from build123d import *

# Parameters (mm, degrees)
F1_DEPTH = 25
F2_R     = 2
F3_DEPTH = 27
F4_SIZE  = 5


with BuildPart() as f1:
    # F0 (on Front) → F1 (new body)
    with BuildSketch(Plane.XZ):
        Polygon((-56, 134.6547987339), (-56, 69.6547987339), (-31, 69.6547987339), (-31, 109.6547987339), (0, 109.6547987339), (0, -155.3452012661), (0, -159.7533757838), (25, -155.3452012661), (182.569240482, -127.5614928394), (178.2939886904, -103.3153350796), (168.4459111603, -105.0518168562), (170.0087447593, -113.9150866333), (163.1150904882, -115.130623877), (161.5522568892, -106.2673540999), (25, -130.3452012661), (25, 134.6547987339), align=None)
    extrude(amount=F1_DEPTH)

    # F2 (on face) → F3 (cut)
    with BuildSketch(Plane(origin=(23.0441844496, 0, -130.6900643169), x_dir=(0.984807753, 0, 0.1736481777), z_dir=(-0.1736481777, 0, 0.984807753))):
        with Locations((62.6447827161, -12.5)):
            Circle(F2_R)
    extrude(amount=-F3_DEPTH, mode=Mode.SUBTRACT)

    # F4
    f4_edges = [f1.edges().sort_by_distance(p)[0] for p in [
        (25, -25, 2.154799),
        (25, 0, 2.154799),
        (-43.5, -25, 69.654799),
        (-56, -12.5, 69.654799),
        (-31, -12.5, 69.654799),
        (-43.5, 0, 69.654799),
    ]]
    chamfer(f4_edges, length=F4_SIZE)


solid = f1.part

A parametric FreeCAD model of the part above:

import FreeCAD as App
import Part
import Sketcher
from FreeCAD import Vector
Q = App.Units.Quantity


def edges_at(feature, points):
    """Names of the edges that pass closest to the given points."""
    edges = feature.Shape.Edges
    near = lambda p: min(range(len(edges)), key=lambda i: edges[i].distToShape(Part.Vertex(*p))[0])
    return sorted({f"Edge{near(p) + 1}" for p in points})


def add_polygon(sketch, points):
    """Adds a closed chain of lines whose ends are joined by coincident constraints."""
    first, n = sketch.GeometryCount, len(points)
    for a, b in zip(points, points[1:] + points[:1]):
        sketch.addGeometry(Part.LineSegment(App.Vector(*a, 0), App.Vector(*b, 0)), False)
    for i in range(n):
        sketch.addConstraint(Sketcher.Constraint("Coincident", first + i, 2, first + (i + 1) % n, 1))

doc = App.newDocument("Part")
body = doc.addObject("PartDesign::Body", "Body")

# Sketch on XZ plane
sketch1 = body.newObject("Sketcher::SketchObject", "Sketch")
sketch1.AttachmentSupport = (doc.getObject("XZ_Plane"), [""])
sketch1.MapMode = "FlatFace"
add_polygon(sketch1, [(-56, 134.654799), (-56, 69.654799), (-31, 69.654799), (-31, 109.654799), (0, 109.654799), (0, -159.753376), (182.56924, -127.561493), (178.293989, -103.315335), (168.445911, -105.051817), (170.008745, -113.915087), (163.11509, -115.130624), (161.552257, -106.267354), (25, -130.345201), (25, 134.654799)])  # lines 0-13
sketch1.addConstraint([
    Sketcher.Constraint("Vertical", 0),
    Sketcher.Constraint("Horizontal", 1),
    Sketcher.Constraint("Vertical", 2),
    Sketcher.Constraint("Horizontal", 3),
    Sketcher.Constraint("Vertical", 4),
    Sketcher.Constraint("Vertical", 12),
    Sketcher.Constraint("Horizontal", 13),
    Sketcher.Constraint("PointOnObject", 3, 2, -2),
    Sketcher.Constraint("Perpendicular", 5, 6),
    Sketcher.Constraint("Perpendicular", 6, 7),
    Sketcher.Constraint("Perpendicular", 7, 8),
    Sketcher.Constraint("Perpendicular", 8, 9),
    Sketcher.Constraint("Perpendicular", 9, 10),
    Sketcher.Constraint("Perpendicular", 10, 11),
    Sketcher.Constraint("Equal", 8, 10),
    Sketcher.Constraint("DistanceX", 1, 1, 1, 2, Q("25 mm")),
    Sketcher.Constraint("DistanceX", 3, 1, 3, 2, Q("31 mm")),
    Sketcher.Constraint("DistanceX", 13, 2, 13, 1, Q("81 mm")),
    Sketcher.Constraint("DistanceY", 0, 2, 0, 1, Q("65 mm")),
    Sketcher.Constraint("DistanceY", 2, 1, 2, 2, Q("40 mm")),
    Sketcher.Constraint("DistanceY", 12, 1, 12, 2, Q("265 mm")),
    Sketcher.Constraint("Angle", 5, Q("10 deg")),
    Sketcher.Constraint("Distance", 7, Q("10 mm")),
    Sketcher.Constraint("Distance", 8, Q("9 mm")),
    Sketcher.Constraint("Distance", 9, Q("7 mm")),
    Sketcher.Constraint("DistanceY", -1, 1, 0, 2, Q("69.654799 mm")),
    Sketcher.Constraint("DistanceY", 4, 2, 4, 1, Q("269.408175 mm")),
    Sketcher.Constraint("DistanceX", -1, 1, 5, 2, Q("182.56924 mm")),
])
pad1 = body.newObject("PartDesign::Pad", "Pad")
pad1.Profile = sketch1
pad1.Length = 25

# Sketch on an angled plane
sketch2 = body.newObject("Sketcher::SketchObject", "Sketch001")
sketch2.Placement = App.Placement(Vector(23.044184, 0, -130.690064), App.Rotation(Vector(0.984807753, 0, 0.173648178), Vector(0, 1, 0), Vector(-0.173648178, 0, 0.984807753), "ZXY"))
sketch2.addGeometry(Part.Circle(Vector(62.644783, -12.5, 0), Vector(0, 0, 1), 2), False)
sketch2.addConstraint([
    Sketcher.Constraint("Diameter", 0, Q("4 mm")),
    Sketcher.Constraint("DistanceY", 0, 3, -1, 1, Q("12.5 mm")),
    Sketcher.Constraint("DistanceX", -1, 1, 0, 3, Q("62.644783 mm")),
])
pocket1 = body.newObject("PartDesign::Pocket", "Pocket")
pocket1.Profile = sketch2
pocket1.Length = 27
doc.recompute()

chamfer = body.newObject("PartDesign::Chamfer", "Chamfer")
chamfer.Base = (pocket1, edges_at(pocket1, [
    (25, -25, 2.155),
    (25, 0, 2.155),
    (-43.5, -25, 69.655),
    (-56, -12.5, 69.655),
    (-31, -12.5, 69.655),
    (-43.5, 0, 69.655),
]))
chamfer.Size = 5

doc.recompute()
